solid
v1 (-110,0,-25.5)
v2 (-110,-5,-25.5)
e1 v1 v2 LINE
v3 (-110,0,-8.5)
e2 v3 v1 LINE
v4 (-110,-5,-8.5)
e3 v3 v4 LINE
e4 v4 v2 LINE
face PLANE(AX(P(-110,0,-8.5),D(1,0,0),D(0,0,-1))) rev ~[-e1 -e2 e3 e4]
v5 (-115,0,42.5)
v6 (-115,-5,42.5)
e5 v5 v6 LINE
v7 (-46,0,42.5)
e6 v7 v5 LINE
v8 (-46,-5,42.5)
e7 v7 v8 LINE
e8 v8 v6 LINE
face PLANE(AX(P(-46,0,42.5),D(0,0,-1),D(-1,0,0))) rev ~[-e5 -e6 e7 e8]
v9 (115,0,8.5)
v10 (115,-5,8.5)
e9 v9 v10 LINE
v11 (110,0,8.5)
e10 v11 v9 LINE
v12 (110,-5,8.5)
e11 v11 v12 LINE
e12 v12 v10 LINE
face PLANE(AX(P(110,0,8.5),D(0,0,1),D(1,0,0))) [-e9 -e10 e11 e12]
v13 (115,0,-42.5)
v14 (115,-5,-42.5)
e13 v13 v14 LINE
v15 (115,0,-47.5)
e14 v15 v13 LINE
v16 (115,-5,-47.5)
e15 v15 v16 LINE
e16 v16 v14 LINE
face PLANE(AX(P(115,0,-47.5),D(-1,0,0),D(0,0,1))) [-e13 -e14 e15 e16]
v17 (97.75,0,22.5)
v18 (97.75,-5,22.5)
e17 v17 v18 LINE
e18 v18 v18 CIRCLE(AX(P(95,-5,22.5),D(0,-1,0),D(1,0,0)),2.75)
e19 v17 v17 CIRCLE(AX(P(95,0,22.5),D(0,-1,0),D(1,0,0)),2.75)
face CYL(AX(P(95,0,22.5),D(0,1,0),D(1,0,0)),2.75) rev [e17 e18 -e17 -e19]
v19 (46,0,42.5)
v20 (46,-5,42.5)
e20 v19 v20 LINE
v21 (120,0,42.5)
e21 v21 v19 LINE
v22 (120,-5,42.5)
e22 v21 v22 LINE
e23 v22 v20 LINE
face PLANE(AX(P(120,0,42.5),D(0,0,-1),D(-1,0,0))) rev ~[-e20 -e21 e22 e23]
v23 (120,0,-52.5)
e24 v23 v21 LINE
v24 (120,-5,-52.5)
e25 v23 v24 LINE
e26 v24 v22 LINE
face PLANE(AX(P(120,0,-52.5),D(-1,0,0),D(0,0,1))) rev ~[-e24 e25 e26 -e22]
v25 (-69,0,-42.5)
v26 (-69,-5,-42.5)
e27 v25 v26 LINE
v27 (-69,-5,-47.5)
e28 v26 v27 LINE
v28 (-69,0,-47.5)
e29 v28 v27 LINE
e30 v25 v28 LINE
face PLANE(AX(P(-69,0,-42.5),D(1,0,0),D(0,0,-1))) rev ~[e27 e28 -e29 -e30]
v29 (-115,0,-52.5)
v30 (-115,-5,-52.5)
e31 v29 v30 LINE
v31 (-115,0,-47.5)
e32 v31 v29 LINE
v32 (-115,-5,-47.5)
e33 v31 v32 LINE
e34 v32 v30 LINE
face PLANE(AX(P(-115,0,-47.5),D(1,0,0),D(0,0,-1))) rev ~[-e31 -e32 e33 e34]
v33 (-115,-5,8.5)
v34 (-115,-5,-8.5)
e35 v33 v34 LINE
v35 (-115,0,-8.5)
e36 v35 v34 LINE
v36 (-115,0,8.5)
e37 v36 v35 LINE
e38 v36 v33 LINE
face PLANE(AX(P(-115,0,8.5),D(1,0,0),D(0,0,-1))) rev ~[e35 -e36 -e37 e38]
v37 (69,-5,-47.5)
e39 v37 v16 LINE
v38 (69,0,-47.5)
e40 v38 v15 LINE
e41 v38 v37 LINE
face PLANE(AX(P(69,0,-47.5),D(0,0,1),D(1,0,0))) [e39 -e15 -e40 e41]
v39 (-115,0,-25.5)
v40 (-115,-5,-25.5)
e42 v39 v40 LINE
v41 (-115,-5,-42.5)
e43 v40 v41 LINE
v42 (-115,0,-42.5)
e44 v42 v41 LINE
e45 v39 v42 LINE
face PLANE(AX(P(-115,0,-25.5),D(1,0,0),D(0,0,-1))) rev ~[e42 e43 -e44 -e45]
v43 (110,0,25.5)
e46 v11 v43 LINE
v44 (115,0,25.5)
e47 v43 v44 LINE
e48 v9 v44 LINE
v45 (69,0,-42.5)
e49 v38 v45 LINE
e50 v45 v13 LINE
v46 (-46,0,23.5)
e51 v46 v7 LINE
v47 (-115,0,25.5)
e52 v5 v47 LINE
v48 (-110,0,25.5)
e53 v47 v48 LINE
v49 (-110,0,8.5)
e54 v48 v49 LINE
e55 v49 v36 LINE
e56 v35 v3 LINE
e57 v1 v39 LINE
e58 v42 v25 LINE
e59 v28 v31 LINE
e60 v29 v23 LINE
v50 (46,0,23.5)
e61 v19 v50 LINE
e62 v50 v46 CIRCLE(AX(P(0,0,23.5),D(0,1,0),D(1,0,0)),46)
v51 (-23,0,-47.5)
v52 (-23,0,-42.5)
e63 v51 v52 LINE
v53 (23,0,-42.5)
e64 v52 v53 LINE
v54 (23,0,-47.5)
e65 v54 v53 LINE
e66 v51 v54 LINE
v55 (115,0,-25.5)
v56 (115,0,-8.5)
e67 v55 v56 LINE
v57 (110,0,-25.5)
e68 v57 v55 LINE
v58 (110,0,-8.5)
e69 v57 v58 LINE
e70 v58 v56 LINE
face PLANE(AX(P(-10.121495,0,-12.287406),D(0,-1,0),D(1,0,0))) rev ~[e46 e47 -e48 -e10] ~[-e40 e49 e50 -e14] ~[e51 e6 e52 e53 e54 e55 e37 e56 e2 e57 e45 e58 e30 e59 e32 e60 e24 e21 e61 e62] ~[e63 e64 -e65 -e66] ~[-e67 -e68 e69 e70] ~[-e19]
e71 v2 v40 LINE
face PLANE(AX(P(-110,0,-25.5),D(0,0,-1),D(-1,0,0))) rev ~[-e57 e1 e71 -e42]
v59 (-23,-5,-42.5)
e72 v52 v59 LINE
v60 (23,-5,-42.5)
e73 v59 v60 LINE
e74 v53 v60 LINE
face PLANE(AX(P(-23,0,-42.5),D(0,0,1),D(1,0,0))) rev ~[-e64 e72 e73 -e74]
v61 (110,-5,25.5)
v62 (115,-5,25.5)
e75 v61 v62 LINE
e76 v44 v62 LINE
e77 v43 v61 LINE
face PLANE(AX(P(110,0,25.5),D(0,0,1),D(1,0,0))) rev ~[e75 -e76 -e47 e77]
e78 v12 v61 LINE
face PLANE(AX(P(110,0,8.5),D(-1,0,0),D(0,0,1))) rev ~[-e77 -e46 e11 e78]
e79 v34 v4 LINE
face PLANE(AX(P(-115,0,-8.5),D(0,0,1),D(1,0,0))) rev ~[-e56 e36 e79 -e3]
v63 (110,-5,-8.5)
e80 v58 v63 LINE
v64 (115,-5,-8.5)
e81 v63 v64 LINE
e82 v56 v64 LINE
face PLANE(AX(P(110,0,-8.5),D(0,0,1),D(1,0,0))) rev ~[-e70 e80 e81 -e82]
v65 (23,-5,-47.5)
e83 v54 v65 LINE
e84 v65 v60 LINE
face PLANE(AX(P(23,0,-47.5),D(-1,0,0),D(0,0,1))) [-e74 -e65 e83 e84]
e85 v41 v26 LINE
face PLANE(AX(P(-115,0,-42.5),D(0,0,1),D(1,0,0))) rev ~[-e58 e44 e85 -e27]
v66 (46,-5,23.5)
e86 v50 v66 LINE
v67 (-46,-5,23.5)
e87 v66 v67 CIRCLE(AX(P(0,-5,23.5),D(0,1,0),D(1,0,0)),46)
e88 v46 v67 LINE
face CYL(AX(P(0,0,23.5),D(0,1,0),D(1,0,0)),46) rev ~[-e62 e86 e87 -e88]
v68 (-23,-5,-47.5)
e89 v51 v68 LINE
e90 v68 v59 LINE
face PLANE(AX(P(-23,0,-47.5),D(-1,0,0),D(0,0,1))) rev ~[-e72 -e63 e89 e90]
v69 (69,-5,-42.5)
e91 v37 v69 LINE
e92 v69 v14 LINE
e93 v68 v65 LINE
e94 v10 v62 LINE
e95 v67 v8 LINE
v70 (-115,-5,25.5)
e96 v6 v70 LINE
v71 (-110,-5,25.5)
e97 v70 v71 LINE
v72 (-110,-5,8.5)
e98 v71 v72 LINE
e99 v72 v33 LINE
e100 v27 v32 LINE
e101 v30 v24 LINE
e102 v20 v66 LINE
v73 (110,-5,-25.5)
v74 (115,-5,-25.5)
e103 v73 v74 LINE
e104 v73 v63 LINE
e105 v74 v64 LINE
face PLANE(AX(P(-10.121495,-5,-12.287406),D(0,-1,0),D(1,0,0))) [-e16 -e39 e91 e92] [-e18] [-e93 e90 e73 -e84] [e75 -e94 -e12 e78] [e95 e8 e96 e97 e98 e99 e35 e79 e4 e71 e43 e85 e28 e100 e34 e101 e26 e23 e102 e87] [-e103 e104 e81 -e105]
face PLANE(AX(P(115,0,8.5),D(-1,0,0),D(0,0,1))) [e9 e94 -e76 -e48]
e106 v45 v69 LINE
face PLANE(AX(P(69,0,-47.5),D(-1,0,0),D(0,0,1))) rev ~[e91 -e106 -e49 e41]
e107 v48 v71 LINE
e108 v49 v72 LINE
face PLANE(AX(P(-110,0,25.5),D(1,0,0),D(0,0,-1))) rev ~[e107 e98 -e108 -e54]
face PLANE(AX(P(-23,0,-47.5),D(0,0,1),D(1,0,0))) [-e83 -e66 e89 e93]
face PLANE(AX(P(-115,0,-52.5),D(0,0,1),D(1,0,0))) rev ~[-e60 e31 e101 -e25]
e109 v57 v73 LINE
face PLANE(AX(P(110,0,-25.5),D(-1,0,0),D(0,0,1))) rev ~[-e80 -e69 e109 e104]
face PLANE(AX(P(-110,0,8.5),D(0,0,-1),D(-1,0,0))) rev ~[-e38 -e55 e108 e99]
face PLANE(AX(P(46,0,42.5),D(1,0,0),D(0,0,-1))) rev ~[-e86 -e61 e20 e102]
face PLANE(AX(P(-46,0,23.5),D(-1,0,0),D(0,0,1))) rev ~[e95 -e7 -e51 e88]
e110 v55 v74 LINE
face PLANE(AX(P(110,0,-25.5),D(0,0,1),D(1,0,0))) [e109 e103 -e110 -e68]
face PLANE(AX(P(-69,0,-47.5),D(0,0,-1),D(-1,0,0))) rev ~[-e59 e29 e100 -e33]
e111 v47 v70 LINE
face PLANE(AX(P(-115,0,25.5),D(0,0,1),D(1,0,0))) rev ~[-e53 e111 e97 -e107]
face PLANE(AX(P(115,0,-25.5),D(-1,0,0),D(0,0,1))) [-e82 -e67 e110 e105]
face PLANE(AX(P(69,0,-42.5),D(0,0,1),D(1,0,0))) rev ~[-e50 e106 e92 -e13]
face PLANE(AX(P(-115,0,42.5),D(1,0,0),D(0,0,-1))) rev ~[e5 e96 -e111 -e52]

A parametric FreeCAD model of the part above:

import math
import FreeCAD as App
import Part
import Sketcher

V = App.Vector

doc = App.newDocument("Part")
body = doc.addObject("PartDesign::Body", "Body")

# Sketch on XZ plane
sketch1 = doc.addObject("Sketcher::SketchObject", "Sketch")
body.addObject(sketch1)
sketch1.AttachmentSupport = (doc.XZ_Plane, [""])
sketch1.MapMode = "FlatFace"
sketch1.addGeometry(Part.LineSegment(V(46, 42.5, 0), V(46, 23.5, 0)), False)
sketch1.addGeometry(Part.ArcOfCircle(Part.Circle(V(0, 23.5, 0), V(0, 0, 1), 46), math.radians(180), math.radians(360)), False)
sketch1.addGeometry(Part.LineSegment(V(-46, 23.5, 0), V(-46, 42.5, 0)), False)
sketch1.addGeometry(Part.LineSegment(V(-46, 42.5, 0), V(-115, 42.5, 0)), False)
sketch1.addGeometry(Part.LineSegment(V(-115, 42.5, 0), V(-115, 25.5, 0)), False)
sketch1.addGeometry(Part.LineSegment(V(-115, 25.5, 0), V(-110, 25.5, 0)), False)
sketch1.addGeometry(Part.LineSegment(V(-110, 25.5, 0), V(-110, 8.5, 0)), False)
sketch1.addGeometry(Part.LineSegment(V(-110, 8.5, 0), V(-115, 8.5, 0)), False)
sketch1.addGeometry(Part.LineSegment(V(-115, 8.5, 0), V(-115, -8.5, 0)), False)
sketch1.addGeometry(Part.LineSegment(V(-115, -8.5, 0), V(-110, -8.5, 0)), False)
sketch1.addGeometry(Part.LineSegment(V(-110, -8.5, 0), V(-110, -25.5, 0)), False)
sketch1.addGeometry(Part.LineSegment(V(-110, -25.5, 0), V(-115, -25.5, 0)), False)
sketch1.addGeometry(Part.LineSegment(V(-115, -25.5, 0), V(-115, -42.5, 0)), False)
sketch1.addGeometry(Part.LineSegment(V(-115, -42.5, 0), V(-69, -42.5, 0)), False)
sketch1.addGeometry(Part.LineSegment(V(-69, -42.5, 0), V(-69, -47.5, 0)), False)
sketch1.addGeometry(Part.LineSegment(V(-69, -47.5, 0), V(-115, -47.5, 0)), False)
sketch1.addGeometry(Part.LineSegment(V(-115, -47.5, 0), V(-115, -52.5, 0)), False)
sketch1.addGeometry(Part.LineSegment(V(-115, -52.5, 0), V(120, -52.5, 0)), False)
sketch1.addGeometry(Part.LineSegment(V(120, -52.5, 0), V(120, 42.5, 0)), False)
sketch1.addGeometry(Part.LineSegment(V(120, 42.5, 0), V(46, 42.5, 0)), False)
sketch1.addGeometry(Part.LineSegment(V(23, -47.5, 0), V(-23, -47.5, 0)), False)
sketch1.addGeometry(Part.LineSegment(V(-23, -47.5, 0), V(-23, -42.5, 0)), False)
sketch1.addGeometry(Part.LineSegment(V(-23, -42.5, 0), V(23, -42.5, 0)), False)
sketch1.addGeometry(Part.LineSegment(V(23, -42.5, 0), V(23, -47.5, 0)), False)
sketch1.addGeometry(Part.LineSegment(V(115, -47.5, 0), V(69, -47.5, 0)), False)
sketch1.addGeometry(Part.LineSegment(V(69, -47.5, 0), V(69, -42.5, 0)), False)
sketch1.addGeometry(Part.LineSegment(V(69, -42.5, 0), V(115, -42.5, 0)), False)
sketch1.addGeometry(Part.LineSegment(V(115, -42.5, 0), V(115, -47.5, 0)), False)
sketch1.addGeometry(Part.LineSegment(V(115, -25.5, 0), V(110, -25.5, 0)), False)
sketch1.addGeometry(Part.LineSegment(V(110, -25.5, 0), V(110, -8.5, 0)), False)
sketch1.addGeometry(Part.LineSegment(V(110, -8.5, 0), V(115, -8.5, 0)), False)
sketch1.addGeometry(Part.LineSegment(V(115, -8.5, 0), V(115, -25.5, 0)), False)
sketch1.addGeometry(Part.Circle(V(95, 22.5, 0), V(0, 0, 1), 2.8), False)
sketch1.addGeometry(Part.LineSegment(V(115, 8.5, 0), V(110, 8.5, 0)), False)
sketch1.addGeometry(Part.LineSegment(V(110, 8.5, 0), V(110, 25.5, 0)), False)
sketch1.addGeometry(Part.LineSegment(V(110, 25.5, 0), V(115, 25.5, 0)), False)
sketch1.addGeometry(Part.LineSegment(V(115, 25.5, 0), V(115, 8.5, 0)), False)
sketch1.addConstraint(Sketcher.Constraint("Tangent", 0, 2, 1, 2))
sketch1.addConstraint(Sketcher.Constraint("Tangent", 1, 1, 2, 1))
sketch1.addConstraint(Sketcher.Constraint("Coincident", 2, 2, 3, 1))
sketch1.addConstraint(Sketcher.Constraint("Coincident", 3, 2, 4, 1))
sketch1.addConstraint(Sketcher.Constraint("Coincident", 4, 2, 5, 1))
sketch1.addConstraint(Sketcher.Constraint("Coincident", 5, 2, 6, 1))
sketch1.addConstraint(Sketcher.Constraint("Coincident", 6, 2, 7, 1))
sketch1.addConstraint(Sketcher.Constraint("Coincident", 7, 2, 8, 1))
sketch1.addConstraint(Sketcher.Constraint("Coincident", 8, 2, 9, 1))
sketch1.addConstraint(Sketcher.Constraint("Coincident", 9, 2, 10, 1))
sketch1.addConstraint(Sketcher.Constraint("Coincident", 10, 2, 11, 1))
sketch1.addConstraint(Sketcher.Constraint("Coincident", 11, 2, 12, 1))
sketch1.addConstraint(Sketcher.Constraint("Coincident", 12, 2, 13, 1))
sketch1.addConstraint(Sketcher.Constraint("Coincident", 13, 2, 14, 1))
sketch1.addConstraint(Sketcher.Constraint("Coincident", 14, 2, 15, 1))
sketch1.addConstraint(Sketcher.Constraint("Coincident", 15, 2, 16, 1))
sketch1.addConstraint(Sketcher.Constraint("Coincident", 16, 2, 17, 1))
sketch1.addConstraint(Sketcher.Constraint("Coincident", 17, 2, 18, 1))
sketch1.addConstraint(Sketcher.Constraint("Coincident", 18, 2, 19, 1))
sketch1.addConstraint(Sketcher.Constraint("Coincident", 19, 2, 0, 1))
sketch1.addConstraint(Sketcher.Constraint("Coincident", 20, 2, 21, 1))
sketch1.addConstraint(Sketcher.Constraint("Coincident", 21, 2, 22, 1))
sketch1.addConstraint(Sketcher.Constraint("Coincident", 22, 2, 23, 1))
sketch1.addConstraint(Sketcher.Constraint("Coincident", 23, 2, 20, 1))
sketch1.addConstraint(Sketcher.Constraint("Coincident", 24, 2, 25, 1))
sketch1.addConstraint(Sketcher.Constraint("Coincident", 25, 2, 26, 1))
sketch1.addConstraint(Sketcher.Constraint("Coincident", 26, 2, 27, 1))
sketch1.addConstraint(Sketcher.Constraint("Coincident", 27, 2, 24, 1))
sketch1.addConstraint(Sketcher.Constraint("Coincident", 28, 2, 29, 1))
sketch1.addConstraint(Sketcher.Constraint("Coincident", 29, 2, 30, 1))
sketch1.addConstraint(Sketcher.Constraint("Coincident", 30, 2, 31, 1))
sketch1.addConstraint(Sketcher.Constraint("Coincident", 31, 2, 28, 1))
sketch1.addConstraint(Sketcher.Constraint("Coincident", 33, 2, 34, 1))
sketch1.addConstraint(Sketcher.Constraint("Coincident", 34, 2, 35, 1))
sketch1.addConstraint(Sketcher.Constraint("Coincident", 35, 2, 36, 1))
sketch1.addConstraint(Sketcher.Constraint("Coincident", 36, 2, 33, 1))
sketch1.addConstraint(Sketcher.Constraint("Vertical", 0))
sketch1.addConstraint(Sketcher.Constraint("Vertical", 2))
sketch1.addConstraint(Sketcher.Constraint("Horizontal", 3))
sketch1.addConstraint(Sketcher.Constraint("Vertical", 4))
sketch1.addConstraint(Sketcher.Constraint("Horizontal", 5))
sketch1.addConstraint(Sketcher.Constraint("Vertical", 6))
sketch1.addConstraint(Sketcher.Constraint("Horizontal", 7))
sketch1.addConstraint(Sketcher.Constraint("Vertical", 8))
sketch1.addConstraint(Sketcher.Constraint("Horizontal", 9))
sketch1.addConstraint(Sketcher.Constraint("Vertical", 10))
sketch1.addConstraint(Sketcher.Constraint("Horizontal", 11))
sketch1.addConstraint(Sketcher.Constraint("Vertical", 12))
sketch1.addConstraint(Sketcher.Constraint("Horizontal", 13))
sketch1.addConstraint(Sketcher.Constraint("Vertical", 14))
sketch1.addConstraint(Sketcher.Constraint("Horizontal", 15))
sketch1.addConstraint(Sketcher.Constraint("Vertical", 16))
sketch1.addConstraint(Sketcher.Constraint("Horizontal", 17))
sketch1.addConstraint(Sketcher.Constraint("Vertical", 18))
sketch1.addConstraint(Sketcher.Constraint("Horizontal", 19))
sketch1.addConstraint(Sketcher.Constraint("Horizontal", 20))
sketch1.addConstraint(Sketcher.Constraint("Vertical", 21))
sketch1.addConstraint(Sketcher.Constraint("Horizontal", 22))
sketch1.addConstraint(Sketcher.Constraint("Vertical", 23))
sketch1.addConstraint(Sketcher.Constraint("Horizontal", 24))
sketch1.addConstraint(Sketcher.Constraint("Vertical", 25))
sketch1.addConstraint(Sketcher.Constraint("Horizontal", 26))
sketch1.addConstraint(Sketcher.Constraint("Vertical", 27))
sketch1.addConstraint(Sketcher.Constraint("Horizontal", 28))
sketch1.addConstraint(Sketcher.Constraint("Vertical", 29))
sketch1.addConstraint(Sketcher.Constraint("Horizontal", 30))
sketch1.addConstraint(Sketcher.Constraint("Vertical", 31))
sketch1.addConstraint(Sketcher.Constraint("Horizontal", 33))
sketch1.addConstraint(Sketcher.Constraint("Vertical", 34))
sketch1.addConstraint(Sketcher.Constraint("Horizontal", 35))
sketch1.addConstraint(Sketcher.Constraint("Vertical", 36))
sketch1.addConstraint(Sketcher.Constraint("Symmetric", 3, 2, 26, 2, -1, 1))
sketch1.addConstraint(Sketcher.Constraint("Symmetric", 5, 2, 28, 2, -1, 1))
sketch1.addConstraint(Sketcher.Constraint("Symmetric", 7, 2, 30, 2, -1, 1))
sketch1.addConstraint(Sketcher.Constraint("Symmetric", 9, 2, 33, 2, -1, 1))
sketch1.addConstraint(Sketcher.Constraint("Symmetric", 11, 2, 35, 2, -1, 1))
sketch1.addConstraint(Sketcher.Constraint("Symmetric", 2, 2, 19, 2, -2))
sketch1.addConstraint(Sketcher.Constraint("Symmetric", 14, 2, 24, 2, -2))
sketch1.addConstraint(Sketcher.Constraint("Symmetric", 12, 2, 26, 2, -2))
sketch1.addConstraint(Sketcher.Constraint("Symmetric", 10, 2, 28, 2, -2))
sketch1.addConstraint(Sketcher.Constraint("Symmetric", 7, 2, 36, 2, -2))
sketch1.addConstraint(Sketcher.Constraint("Horizontal", 15, 2, 20, 2))
sketch1.addConstraint(Sketcher.Constraint("Horizontal", 13, 2, 21, 2))
sketch1.addConstraint(Sketcher.Constraint("Vertical", 12, 2, 15, 2))
sketch1.addConstraint(Sketcher.Constraint("Equal", 15, 20))
sketch1.addConstraint(Sketcher.Constraint("Equal", 4, 6))
sketch1.addConstraint(Sketcher.Constraint("Equal", 6, 8))
sketch1.addConstraint(Sketcher.Constraint("Equal", 35, 14))
sketch1.addConstraint(Sketcher.Constraint("Equal", 14, 16))
sketch1.addConstraint(Sketcher.Constraint("Radius", 1, 46.0))
sketch1.addConstraint(Sketcher.Constraint("Diameter", 32, 5.5))
sketch1.addConstraint(Sketcher.Constraint("DistanceX", 3, 2, 3, 1, 69.0))
sketch1.addConstraint(Sketcher.Constraint("DistanceX", 5, 1, 5, 2, 5.0))
sketch1.addConstraint(Sketcher.Constraint("DistanceX", 13, 1, 13, 2, 46.0))
sketch1.addConstraint(Sketcher.Constraint("DistanceX", 17, 1, 17, 2, 235.0))
sketch1.addConstraint(Sketcher.Constraint("DistanceY", 0, 2, 0, 1, 19.0))
sketch1.addConstraint(Sketcher.Constraint("DistanceY", 4, 2, 4, 1, 17.0))
sketch1.addConstraint(Sketcher.Constraint("DistanceX", -1, 1, 32, 3, 95.0))
sketch1.addConstraint(Sketcher.Constraint("DistanceX", 20, 2, -1, 1, 23.0))
sketch1.addConstraint(Sketcher.Constraint("DistanceY", 32, 3, 1, 3, 1.0))
pad1 = doc.addObject("PartDesign::Pad", "Pad")
body.addObject(pad1)
pad1.Profile = sketch1
pad1.Length = 5

doc.recompute()
